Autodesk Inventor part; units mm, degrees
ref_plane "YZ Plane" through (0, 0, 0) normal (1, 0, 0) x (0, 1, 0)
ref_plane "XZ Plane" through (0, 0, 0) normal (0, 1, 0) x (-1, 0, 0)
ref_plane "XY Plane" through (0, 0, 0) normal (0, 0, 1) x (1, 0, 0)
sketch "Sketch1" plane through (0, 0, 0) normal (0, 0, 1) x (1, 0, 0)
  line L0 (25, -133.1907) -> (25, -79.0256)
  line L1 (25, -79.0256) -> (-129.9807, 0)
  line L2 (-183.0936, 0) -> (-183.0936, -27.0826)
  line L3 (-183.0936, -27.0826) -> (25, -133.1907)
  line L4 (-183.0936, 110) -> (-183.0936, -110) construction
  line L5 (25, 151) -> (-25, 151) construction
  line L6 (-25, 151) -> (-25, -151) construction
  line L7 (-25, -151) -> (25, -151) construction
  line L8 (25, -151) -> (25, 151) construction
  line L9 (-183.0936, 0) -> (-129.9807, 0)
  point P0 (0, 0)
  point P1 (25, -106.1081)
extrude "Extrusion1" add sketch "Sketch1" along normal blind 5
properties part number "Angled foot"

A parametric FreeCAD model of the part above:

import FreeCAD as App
import Part
import Sketcher

V = App.Vector
Q = App.Units.Quantity


def add_polygon(sketch, points):
    """Adds a closed chain of lines whose ends are joined by coincident constraints."""
    first, n = sketch.GeometryCount, len(points)
    for a, b in zip(points, points[1:] + points[:1]):
        sketch.addGeometry(Part.LineSegment(App.Vector(*a, 0), App.Vector(*b, 0)), False)
    for i in range(n):
        sketch.addConstraint(Sketcher.Constraint("Coincident", first + i, 2, first + (i + 1) % n, 1))

doc = App.newDocument("Part")
body = doc.addObject("PartDesign::Body", "Body")

sketch1 = doc.addObject("Sketcher::SketchObject", "Sketch")
body.addObject(sketch1)
sketch1.AttachmentSupport = (doc.XY_Plane, [""])
sketch1.MapMode = "FlatFace"
add_polygon(sketch1, [(-183.0936, -27.0826), (25, -133.1907), (25, -79.0256), (-129.9807, 0), (-183.0936, 0)])
sketch1.addConstraint([
    Sketcher.Constraint("Vertical", 1),
    Sketcher.Constraint("Horizontal", 3),
    Sketcher.Constraint("Vertical", 4),
    Sketcher.Constraint("PointOnObject", 2, 2, -1),
    Sketcher.Constraint("Parallel", 0, 2),
    Sketcher.Constraint("DistanceX", -1, 1, 0, 2, Q("25 mm")),
    Sketcher.Constraint("DistanceX", 3, 2, 3, 1, Q("53.113 mm")),
    Sketcher.Constraint("DistanceY", 1, 1, 1, 2, Q("54.165 mm")),
    Sketcher.Constraint("DistanceY", 4, 2, 4, 1, Q("27.0826 mm")),
    Sketcher.Constraint("DistanceY", 1, 2, 4, 2, Q("51.943 mm")),
])
pad1 = doc.addObject("PartDesign::Pad", "Pad")
body.addObject(pad1)
pad1.Profile = sketch1
pad1.Length = 5

doc.recompute()
